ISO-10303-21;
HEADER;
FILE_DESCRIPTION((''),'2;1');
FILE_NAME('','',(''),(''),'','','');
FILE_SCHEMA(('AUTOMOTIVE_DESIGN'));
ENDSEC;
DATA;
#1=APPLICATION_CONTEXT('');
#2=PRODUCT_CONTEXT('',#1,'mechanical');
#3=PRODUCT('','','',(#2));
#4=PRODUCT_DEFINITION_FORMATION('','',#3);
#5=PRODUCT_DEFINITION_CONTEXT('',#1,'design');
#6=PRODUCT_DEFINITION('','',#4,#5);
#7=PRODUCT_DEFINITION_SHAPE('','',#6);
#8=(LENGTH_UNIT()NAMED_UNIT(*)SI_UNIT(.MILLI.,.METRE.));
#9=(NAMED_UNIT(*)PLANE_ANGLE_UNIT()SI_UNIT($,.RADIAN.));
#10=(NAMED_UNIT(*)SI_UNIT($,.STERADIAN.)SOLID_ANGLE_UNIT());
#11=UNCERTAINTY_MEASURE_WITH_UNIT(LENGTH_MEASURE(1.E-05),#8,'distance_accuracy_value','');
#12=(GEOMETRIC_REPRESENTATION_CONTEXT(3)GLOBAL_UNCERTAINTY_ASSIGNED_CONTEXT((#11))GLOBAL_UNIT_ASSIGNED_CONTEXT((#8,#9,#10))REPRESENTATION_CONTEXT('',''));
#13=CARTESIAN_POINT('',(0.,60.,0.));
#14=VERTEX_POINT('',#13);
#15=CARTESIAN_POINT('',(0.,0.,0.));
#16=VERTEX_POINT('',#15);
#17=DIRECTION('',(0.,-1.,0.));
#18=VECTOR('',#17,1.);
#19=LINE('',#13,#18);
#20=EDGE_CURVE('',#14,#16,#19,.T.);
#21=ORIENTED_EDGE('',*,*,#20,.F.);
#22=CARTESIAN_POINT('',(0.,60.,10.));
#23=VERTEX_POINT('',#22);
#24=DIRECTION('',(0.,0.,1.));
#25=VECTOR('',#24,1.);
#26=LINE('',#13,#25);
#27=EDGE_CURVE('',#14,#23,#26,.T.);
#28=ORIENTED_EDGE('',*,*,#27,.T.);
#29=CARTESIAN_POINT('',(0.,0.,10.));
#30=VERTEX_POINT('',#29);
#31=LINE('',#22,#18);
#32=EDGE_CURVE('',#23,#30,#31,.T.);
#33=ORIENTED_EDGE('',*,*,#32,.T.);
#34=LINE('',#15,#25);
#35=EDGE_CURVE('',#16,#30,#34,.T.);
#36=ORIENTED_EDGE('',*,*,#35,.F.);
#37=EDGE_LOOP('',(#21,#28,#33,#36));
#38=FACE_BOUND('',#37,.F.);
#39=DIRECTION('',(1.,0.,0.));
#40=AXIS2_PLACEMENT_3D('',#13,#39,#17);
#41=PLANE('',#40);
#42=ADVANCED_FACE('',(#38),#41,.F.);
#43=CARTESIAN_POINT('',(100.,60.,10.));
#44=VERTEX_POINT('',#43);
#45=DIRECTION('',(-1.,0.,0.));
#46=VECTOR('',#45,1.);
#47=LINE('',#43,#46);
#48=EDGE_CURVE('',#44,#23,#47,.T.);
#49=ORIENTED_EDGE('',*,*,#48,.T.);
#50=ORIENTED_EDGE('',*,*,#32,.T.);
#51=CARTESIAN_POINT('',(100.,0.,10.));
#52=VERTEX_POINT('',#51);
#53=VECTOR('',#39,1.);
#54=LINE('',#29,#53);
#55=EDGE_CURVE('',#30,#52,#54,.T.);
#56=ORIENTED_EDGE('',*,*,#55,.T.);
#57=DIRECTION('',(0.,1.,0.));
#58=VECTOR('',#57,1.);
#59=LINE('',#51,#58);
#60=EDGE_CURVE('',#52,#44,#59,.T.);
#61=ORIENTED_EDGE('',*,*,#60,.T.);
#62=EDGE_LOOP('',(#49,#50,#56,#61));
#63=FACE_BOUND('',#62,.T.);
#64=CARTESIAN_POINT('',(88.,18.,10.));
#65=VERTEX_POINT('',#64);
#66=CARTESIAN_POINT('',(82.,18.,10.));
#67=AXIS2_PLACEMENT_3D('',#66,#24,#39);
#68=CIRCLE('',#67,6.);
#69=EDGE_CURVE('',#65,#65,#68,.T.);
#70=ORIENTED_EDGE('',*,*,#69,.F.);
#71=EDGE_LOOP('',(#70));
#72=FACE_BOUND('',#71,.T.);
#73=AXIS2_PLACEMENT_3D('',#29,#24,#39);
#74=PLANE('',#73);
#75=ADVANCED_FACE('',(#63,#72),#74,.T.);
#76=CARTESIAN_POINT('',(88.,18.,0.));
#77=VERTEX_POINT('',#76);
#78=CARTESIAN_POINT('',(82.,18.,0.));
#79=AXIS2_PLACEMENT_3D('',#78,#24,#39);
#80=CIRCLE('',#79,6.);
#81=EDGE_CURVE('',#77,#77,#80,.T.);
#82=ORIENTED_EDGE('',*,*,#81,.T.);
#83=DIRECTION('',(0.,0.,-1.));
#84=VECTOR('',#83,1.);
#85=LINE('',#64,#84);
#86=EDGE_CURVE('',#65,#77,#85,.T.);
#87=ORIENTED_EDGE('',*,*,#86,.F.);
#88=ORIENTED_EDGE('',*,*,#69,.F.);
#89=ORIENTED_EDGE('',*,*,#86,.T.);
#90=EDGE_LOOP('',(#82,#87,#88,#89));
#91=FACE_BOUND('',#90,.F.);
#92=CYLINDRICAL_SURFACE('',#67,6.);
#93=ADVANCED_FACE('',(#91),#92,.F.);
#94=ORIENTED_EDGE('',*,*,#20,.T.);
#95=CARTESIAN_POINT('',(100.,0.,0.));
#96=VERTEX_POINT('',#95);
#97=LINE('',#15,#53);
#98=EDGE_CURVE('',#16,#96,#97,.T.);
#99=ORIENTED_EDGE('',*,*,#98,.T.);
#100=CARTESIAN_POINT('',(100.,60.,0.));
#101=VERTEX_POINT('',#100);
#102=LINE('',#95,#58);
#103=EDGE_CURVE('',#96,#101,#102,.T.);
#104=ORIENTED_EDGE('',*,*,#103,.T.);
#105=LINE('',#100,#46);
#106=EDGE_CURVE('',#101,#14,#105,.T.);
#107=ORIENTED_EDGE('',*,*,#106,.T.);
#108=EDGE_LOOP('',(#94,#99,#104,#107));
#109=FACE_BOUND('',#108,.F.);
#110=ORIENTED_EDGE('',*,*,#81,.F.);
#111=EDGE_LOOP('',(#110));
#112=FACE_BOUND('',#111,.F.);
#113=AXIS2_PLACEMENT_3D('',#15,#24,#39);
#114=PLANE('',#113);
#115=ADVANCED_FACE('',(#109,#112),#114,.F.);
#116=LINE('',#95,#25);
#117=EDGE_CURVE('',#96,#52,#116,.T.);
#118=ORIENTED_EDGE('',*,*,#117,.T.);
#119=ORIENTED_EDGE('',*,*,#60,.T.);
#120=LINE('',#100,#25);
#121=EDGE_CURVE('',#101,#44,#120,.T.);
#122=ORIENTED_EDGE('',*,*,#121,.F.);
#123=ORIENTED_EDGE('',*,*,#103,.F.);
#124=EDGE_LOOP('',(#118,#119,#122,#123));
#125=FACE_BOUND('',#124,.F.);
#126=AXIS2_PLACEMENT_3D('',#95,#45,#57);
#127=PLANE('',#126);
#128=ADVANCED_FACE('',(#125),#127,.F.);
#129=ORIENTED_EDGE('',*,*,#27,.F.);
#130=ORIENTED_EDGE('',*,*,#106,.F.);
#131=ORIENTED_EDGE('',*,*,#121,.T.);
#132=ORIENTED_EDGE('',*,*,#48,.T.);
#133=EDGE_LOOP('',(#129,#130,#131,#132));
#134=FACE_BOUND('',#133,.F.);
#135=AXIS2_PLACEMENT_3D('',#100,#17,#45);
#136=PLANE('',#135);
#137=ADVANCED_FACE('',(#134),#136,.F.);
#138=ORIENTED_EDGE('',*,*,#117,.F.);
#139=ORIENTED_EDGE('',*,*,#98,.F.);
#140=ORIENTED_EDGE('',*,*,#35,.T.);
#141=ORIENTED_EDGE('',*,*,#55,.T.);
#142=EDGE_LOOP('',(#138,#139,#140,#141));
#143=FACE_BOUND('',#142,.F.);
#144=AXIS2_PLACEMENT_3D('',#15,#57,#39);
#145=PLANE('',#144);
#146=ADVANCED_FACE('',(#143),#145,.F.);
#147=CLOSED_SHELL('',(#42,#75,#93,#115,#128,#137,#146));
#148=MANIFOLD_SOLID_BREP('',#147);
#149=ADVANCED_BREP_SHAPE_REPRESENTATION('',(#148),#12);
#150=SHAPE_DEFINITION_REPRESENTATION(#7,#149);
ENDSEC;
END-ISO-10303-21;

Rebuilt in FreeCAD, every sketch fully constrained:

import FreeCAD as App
import Part
import Sketcher


def add_polygon(sketch, points):
    """Adds a closed chain of lines whose ends are joined by coincident constraints."""
    first, n = sketch.GeometryCount, len(points)
    for a, b in zip(points, points[1:] + points[:1]):
        sketch.addGeometry(Part.LineSegment(App.Vector(*a, 0), App.Vector(*b, 0)), False)
    for i in range(n):
        sketch.addConstraint(Sketcher.Constraint("Coincident", first + i, 2, first + (i + 1) % n, 1))

doc = App.newDocument("Part")
params = doc.addObject("Spreadsheet::Sheet", "Params")
for row, (alias, value) in enumerate([
    ("sketch1_width", "100 mm"),
    ("sketch1_height", "60 mm"),
    ("pad1_length", "10 mm"),
    ("sketch2_diameter", "12 mm"),
    ("pocket1_length", "10 mm"),
], start=1):
    params.set(f"A{row}", alias)
    params.set(f"B{row}", "=" + value)
    params.setAlias(f"B{row}", alias)

body = doc.addObject("PartDesign::Body", "Body")

# Sketch on XY plane
sketch1 = doc.addObject("Sketcher::SketchObject", "Sketch")
body.addObject(sketch1)
sketch1.AttachmentSupport = (doc.XY_Plane, [""])
sketch1.MapMode = "FlatFace"
add_polygon(sketch1, [(0, 60), (0, 0), (100, 0), (100, 60)])  # lines 0-3
sketch1.addConstraint(Sketcher.Constraint("Vertical", 0))
sketch1.addConstraint(Sketcher.Constraint("Horizontal", 1))
sketch1.addConstraint(Sketcher.Constraint("Vertical", 2))
sketch1.addConstraint(Sketcher.Constraint("Horizontal", 3))
sketch1.addConstraint(Sketcher.Constraint("Coincident", 0, 2, -1, 1))
sketch1.addConstraint(Sketcher.Constraint("DistanceX", 1, 1, 1, 2, 100.0))
sketch1.addConstraint(Sketcher.Constraint("DistanceY", 0, 2, 0, 1, 60.0))
sketch1.setExpression("Constraints[9]", "Params.sketch1_width")
sketch1.setExpression("Constraints[10]", "Params.sketch1_height")
pad1 = doc.addObject("PartDesign::Pad", "Pad")
body.addObject(pad1)
pad1.Profile = sketch1
pad1.setExpression("Length", "Params.pad1_length")

# Sketch on XY plane
sketch2 = doc.addObject("Sketcher::SketchObject", "Sketch001")
body.addObject(sketch2)
sketch2.AttachmentSupport = (doc.XY_Plane, [""])
sketch2.MapMode = "FlatFace"
sketch2.AttachmentOffset = App.Placement(App.Vector(0, 0, 10), App.Rotation())
sketch2.addGeometry(Part.Circle(App.Vector(82, 18, 0), App.Vector(0, 0, 1), 6), False)
sketch2.addConstraint(Sketcher.Constraint("Diameter", 0, 12.0))
sketch2.addConstraint(Sketcher.Constraint("DistanceX", -1, 1, 0, 3, 82.0))
sketch2.addConstraint(Sketcher.Constraint("DistanceY", -1, 1, 0, 3, 18.0))
sketch2.setExpression("Constraints[0]", "Params.sketch2_diameter")
pocket1 = doc.addObject("PartDesign::Pocket", "Pocket")
body.addObject(pocket1)
pocket1.Profile = sketch2
pocket1.setExpression("Length", "Params.pocket1_length")

doc.recompute()
